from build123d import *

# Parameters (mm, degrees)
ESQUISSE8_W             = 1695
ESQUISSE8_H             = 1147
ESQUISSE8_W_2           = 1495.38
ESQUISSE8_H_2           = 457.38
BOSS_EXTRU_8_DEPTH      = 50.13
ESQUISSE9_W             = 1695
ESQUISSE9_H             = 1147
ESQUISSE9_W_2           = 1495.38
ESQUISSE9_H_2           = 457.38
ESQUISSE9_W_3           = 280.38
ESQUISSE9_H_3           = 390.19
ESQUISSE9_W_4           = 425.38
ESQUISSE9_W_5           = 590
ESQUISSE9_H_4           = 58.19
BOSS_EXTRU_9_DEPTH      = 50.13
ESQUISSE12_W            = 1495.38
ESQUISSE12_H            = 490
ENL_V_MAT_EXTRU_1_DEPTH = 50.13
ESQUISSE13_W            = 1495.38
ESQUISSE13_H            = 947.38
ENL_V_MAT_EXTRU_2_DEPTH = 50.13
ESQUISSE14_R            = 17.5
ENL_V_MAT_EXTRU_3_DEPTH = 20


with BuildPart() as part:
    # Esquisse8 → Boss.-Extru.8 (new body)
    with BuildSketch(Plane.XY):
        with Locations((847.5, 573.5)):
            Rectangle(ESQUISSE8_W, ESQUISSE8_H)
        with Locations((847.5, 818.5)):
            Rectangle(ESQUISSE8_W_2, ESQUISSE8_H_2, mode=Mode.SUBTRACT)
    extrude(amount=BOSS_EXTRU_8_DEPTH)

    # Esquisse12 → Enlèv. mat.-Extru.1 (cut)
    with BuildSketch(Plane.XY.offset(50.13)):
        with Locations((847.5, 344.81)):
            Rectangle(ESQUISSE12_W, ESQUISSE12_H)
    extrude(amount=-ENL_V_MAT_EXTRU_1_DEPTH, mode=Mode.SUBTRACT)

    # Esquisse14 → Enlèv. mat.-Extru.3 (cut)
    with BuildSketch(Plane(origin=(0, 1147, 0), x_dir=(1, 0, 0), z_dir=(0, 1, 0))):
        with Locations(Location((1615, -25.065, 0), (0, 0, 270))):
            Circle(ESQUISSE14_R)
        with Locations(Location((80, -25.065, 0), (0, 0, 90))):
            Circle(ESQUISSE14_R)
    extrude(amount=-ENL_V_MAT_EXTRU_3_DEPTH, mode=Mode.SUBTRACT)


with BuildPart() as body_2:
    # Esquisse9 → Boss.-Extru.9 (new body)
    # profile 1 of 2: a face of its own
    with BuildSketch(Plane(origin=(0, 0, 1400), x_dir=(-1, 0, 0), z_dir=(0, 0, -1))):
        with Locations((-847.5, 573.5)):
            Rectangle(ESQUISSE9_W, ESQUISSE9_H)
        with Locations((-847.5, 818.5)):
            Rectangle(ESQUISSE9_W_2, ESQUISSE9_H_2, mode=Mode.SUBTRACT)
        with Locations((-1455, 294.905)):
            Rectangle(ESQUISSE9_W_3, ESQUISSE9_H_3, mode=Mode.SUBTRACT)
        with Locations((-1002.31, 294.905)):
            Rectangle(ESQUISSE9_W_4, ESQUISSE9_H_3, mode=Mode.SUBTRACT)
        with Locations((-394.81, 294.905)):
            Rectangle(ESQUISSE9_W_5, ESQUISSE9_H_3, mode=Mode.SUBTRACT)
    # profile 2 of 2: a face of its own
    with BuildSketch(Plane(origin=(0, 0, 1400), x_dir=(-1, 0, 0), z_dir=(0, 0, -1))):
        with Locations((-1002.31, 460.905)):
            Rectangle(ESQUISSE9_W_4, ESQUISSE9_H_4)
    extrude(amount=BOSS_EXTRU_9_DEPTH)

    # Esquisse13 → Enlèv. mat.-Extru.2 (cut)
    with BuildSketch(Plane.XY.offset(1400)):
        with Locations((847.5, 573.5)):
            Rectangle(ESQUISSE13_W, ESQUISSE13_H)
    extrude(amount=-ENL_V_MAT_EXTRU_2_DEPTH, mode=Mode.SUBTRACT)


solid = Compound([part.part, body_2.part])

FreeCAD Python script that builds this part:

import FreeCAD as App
import Part
import Sketcher
from FreeCAD import Vector


def add_polygon(sketch, points):
    """Adds a closed chain of lines whose ends are joined by coincident constraints."""
    first, n = sketch.GeometryCount, len(points)
    for a, b in zip(points, points[1:] + points[:1]):
        sketch.addGeometry(Part.LineSegment(App.Vector(*a, 0), App.Vector(*b, 0)), False)
    for i in range(n):
        sketch.addConstraint(Sketcher.Constraint("Coincident", first + i, 2, first + (i + 1) % n, 1))

doc = App.newDocument("Part")
body = doc.addObject("PartDesign::Body", "Body")

# Sketch on XY plane
sketch1 = body.newObject("Sketcher::SketchObject", "Sketch")
sketch1.AttachmentSupport = (doc.getObject("XY_Plane"), [""])
sketch1.MapMode = "FlatFace"
add_polygon(sketch1, [(0, 1147), (0, 0), (1695, 0), (1695, 1147)])  # lines 0-3
add_polygon(sketch1, [(1595, 590), (100, 590), (100, 1047), (1595, 1047)])  # lines 4-7
sketch1.addConstraint([
    Sketcher.Constraint("Vertical", 0),
    Sketcher.Constraint("Horizontal", 1),
    Sketcher.Constraint("Vertical", 2),
    Sketcher.Constraint("Horizontal", 3),
    Sketcher.Constraint("Horizontal", 4),
    Sketcher.Constraint("Vertical", 5),
    Sketcher.Constraint("Horizontal", 6),
    Sketcher.Constraint("Vertical", 7),
    Sketcher.Constraint("Coincident", 0, 2, -1, 1),
    Sketcher.Constraint("DistanceX", 1, 1, 1, 2, 1695.0),
    Sketcher.Constraint("DistanceY", 0, 2, 0, 1, 1147.0),
    Sketcher.Constraint("DistanceX", 4, 2, 4, 1, 1495.38),
    Sketcher.Constraint("DistanceY", 5, 1, 5, 2, 457.38),
    Sketcher.Constraint("DistanceX", -1, 1, 4, 2, 99.81),
    Sketcher.Constraint("DistanceY", -1, 1, 4, 2, 589.81),
])
pad1 = body.newObject("PartDesign::Pad", "Pad")
pad1.Profile = sketch1
pad1.Length = 50.13

# Sketch on XY plane
sketch2 = body.newObject("Sketcher::SketchObject", "Sketch001")
sketch2.AttachmentSupport = (doc.getObject("XY_Plane"), [""])
sketch2.MapMode = "FlatFace"
sketch2.AttachmentOffset = App.Placement(Vector(0, 0, 50.13), App.Rotation())
add_polygon(sketch2, [(100, 590), (100, 100), (1595, 100), (1595, 590)])  # lines 0-3
sketch2.addConstraint([
    Sketcher.Constraint("Vertical", 0),
    Sketcher.Constraint("Horizontal", 1),
    Sketcher.Constraint("Vertical", 2),
    Sketcher.Constraint("Horizontal", 3),
    Sketcher.Constraint("DistanceY", 0, 2, 0, 1, 490.0),
    Sketcher.Constraint("DistanceX", 1, 1, 1, 2, 1495.38),
    Sketcher.Constraint("DistanceX", -1, 1, 0, 2, 99.81),
    Sketcher.Constraint("DistanceY", -1, 1, 0, 2, 99.81),
])
pocket1 = body.newObject("PartDesign::Pocket", "Pocket")
pocket1.Profile = sketch2
pocket1.Length = 50.13

# Sketch on XZ plane
sketch3 = body.newObject("Sketcher::SketchObject", "Sketch002")
sketch3.AttachmentSupport = (doc.getObject("XZ_Plane"), [""])
sketch3.MapMode = "FlatFace"
sketch3.AttachmentOffset = App.Placement(Vector(0, 0, -1147), App.Rotation())
sketch3.addGeometry([
    Part.Circle(Vector(1615, 25, 0), Vector(0, 0, 1), 18),
    Part.Circle(Vector(80, 25, 0), Vector(0, 0, 1), 18),
], False)
sketch3.addConstraint([
    Sketcher.Constraint("Equal", 0, 1),
    Sketcher.Constraint("Horizontal", 0, 3, 1, 3),
    Sketcher.Constraint("Diameter", 0, 35.0),
    Sketcher.Constraint("DistanceX", -1, 1, 0, 3, 1615.0),
    Sketcher.Constraint("DistanceX", -1, 1, 1, 3, 80.0),
    Sketcher.Constraint("DistanceY", -1, 1, 0, 3, 25.065),
])
pocket2 = body.newObject("PartDesign::Pocket", "Pocket001")
pocket2.Profile = sketch3
pocket2.Length = 20
pocket2.Reversed = True
body2 = doc.addObject("PartDesign::Body", "Body001")

# Sketch on XY plane
sketch4 = body2.newObject("Sketcher::SketchObject", "Sketch003")
sketch4.AttachmentSupport = (doc.getObject("XY_Plane001"), [""])
sketch4.MapMode = "FlatFace"
sketch4.AttachmentOffset = App.Placement(Vector(0, 0, 1400), App.Rotation())
add_polygon(sketch4, [(1695, 1147), (1695, 0), (0, 0), (0, 1147)])  # lines 0-3
add_polygon(sketch4, [(1315, 100), (1595, 100), (1595, 490), (1315, 490)])  # lines 4-7
add_polygon(sketch4, [(790, 100), (1215, 100), (1215, 432), (790, 432)])  # lines 8-11
add_polygon(sketch4, [(100, 100), (690, 100), (690, 490), (100, 490)])  # lines 12-15
add_polygon(sketch4, [(100, 590), (1595, 590), (1595, 1047), (100, 1047)])  # lines 16-19
sketch4.addConstraint([
    Sketcher.Constraint("Vertical", 0),
    Sketcher.Constraint("Horizontal", 1),
    Sketcher.Constraint("Vertical", 2),
    Sketcher.Constraint("Horizontal", 3),
    Sketcher.Constraint("Horizontal", 4),
    Sketcher.Constraint("Vertical", 5),
    Sketcher.Constraint("Horizontal", 6),
    Sketcher.Constraint("Vertical", 7),
    Sketcher.Constraint("Horizontal", 8),
    Sketcher.Constraint("Vertical", 9),
    Sketcher.Constraint("Horizontal", 10),
    Sketcher.Constraint("Vertical", 11),
    Sketcher.Constraint("Horizontal", 12),
    Sketcher.Constraint("Vertical", 13),
    Sketcher.Constraint("Horizontal", 14),
    Sketcher.Constraint("Vertical", 15),
    Sketcher.Constraint("Horizontal", 16),
    Sketcher.Constraint("Vertical", 17),
    Sketcher.Constraint("Horizontal", 18),
    Sketcher.Constraint("Vertical", 19),
    Sketcher.Constraint("Coincident", 1, 2, -1, 1),
    Sketcher.Constraint("Horizontal", 7, 2, 8, 2),
    Sketcher.Constraint("Horizontal", 11, 2, 12, 2),
    Sketcher.Constraint("Horizontal", 6, 2, 13, 2),
    Sketcher.Constraint("Vertical", 5, 2, 16, 2),
    Sketcher.Constraint("Vertical", 15, 2, 18, 2),
    Sketcher.Constraint("DistanceX", 1, 2, 1, 1, 1695.0),
    Sketcher.Constraint("DistanceX", 12, 1, 12, 2, 590.0),
    Sketcher.Constraint("DistanceY", 0, 2, 0, 1, 1147.0),
    Sketcher.Constraint("DistanceY", 9, 1, 9, 2, 332.0),
    Sketcher.Constraint("DistanceY", -1, 1, 5, 2, 490.0),
    Sketcher.Constraint("DistanceX", -1, 1, 8, 2, 1215.0),
    Sketcher.Constraint("DistanceX", 12, 2, 7, 2, 625.0),
    Sketcher.Constraint("DistanceY", 9, 2, 16, 2, 158.0),
    Sketcher.Constraint("DistanceX", 4, 1, 4, 2, 280.38),
    Sketcher.Constraint("DistanceX", 8, 1, 8, 2, 425.38),
    Sketcher.Constraint("DistanceY", 5, 1, 5, 2, 390.19),
    Sketcher.Constraint("DistanceY", 17, 1, 17, 2, 457.38),
    Sketcher.Constraint("DistanceX", -1, 1, 4, 2, 1595.19),
])
pad2 = body2.newObject("PartDesign::Pad", "Pad001")
pad2.Profile = sketch4
pad2.Length = 50.13
pad2.Reversed = True

# Sketch on XY plane
sketch5 = body2.newObject("Sketcher::SketchObject", "Sketch004")
sketch5.AttachmentSupport = (doc.getObject("XY_Plane001"), [""])
sketch5.MapMode = "FlatFace"
sketch5.AttachmentOffset = App.Placement(Vector(0, 0, 1400), App.Rotation())
add_polygon(sketch5, [(100, 1047), (100, 100), (1595, 100), (1595, 1047)])  # lines 0-3
sketch5.addConstraint([
    Sketcher.Constraint("Vertical", 0),
    Sketcher.Constraint("Horizontal", 1),
    Sketcher.Constraint("Vertical", 2),
    Sketcher.Constraint("Horizontal", 3),
    Sketcher.Constraint("DistanceX", 1, 1, 1, 2, 1495.38),
    Sketcher.Constraint("DistanceY", 0, 2, 0, 1, 947.38),
    Sketcher.Constraint("DistanceX", -1, 1, 0, 2, 99.81),
    Sketcher.Constraint("DistanceY", -1, 1, 0, 2, 99.81),
])
pocket3 = body2.newObject("PartDesign::Pocket", "Pocket002")
pocket3.Profile = sketch5
pocket3.Length = 50.13

doc.recompute()
